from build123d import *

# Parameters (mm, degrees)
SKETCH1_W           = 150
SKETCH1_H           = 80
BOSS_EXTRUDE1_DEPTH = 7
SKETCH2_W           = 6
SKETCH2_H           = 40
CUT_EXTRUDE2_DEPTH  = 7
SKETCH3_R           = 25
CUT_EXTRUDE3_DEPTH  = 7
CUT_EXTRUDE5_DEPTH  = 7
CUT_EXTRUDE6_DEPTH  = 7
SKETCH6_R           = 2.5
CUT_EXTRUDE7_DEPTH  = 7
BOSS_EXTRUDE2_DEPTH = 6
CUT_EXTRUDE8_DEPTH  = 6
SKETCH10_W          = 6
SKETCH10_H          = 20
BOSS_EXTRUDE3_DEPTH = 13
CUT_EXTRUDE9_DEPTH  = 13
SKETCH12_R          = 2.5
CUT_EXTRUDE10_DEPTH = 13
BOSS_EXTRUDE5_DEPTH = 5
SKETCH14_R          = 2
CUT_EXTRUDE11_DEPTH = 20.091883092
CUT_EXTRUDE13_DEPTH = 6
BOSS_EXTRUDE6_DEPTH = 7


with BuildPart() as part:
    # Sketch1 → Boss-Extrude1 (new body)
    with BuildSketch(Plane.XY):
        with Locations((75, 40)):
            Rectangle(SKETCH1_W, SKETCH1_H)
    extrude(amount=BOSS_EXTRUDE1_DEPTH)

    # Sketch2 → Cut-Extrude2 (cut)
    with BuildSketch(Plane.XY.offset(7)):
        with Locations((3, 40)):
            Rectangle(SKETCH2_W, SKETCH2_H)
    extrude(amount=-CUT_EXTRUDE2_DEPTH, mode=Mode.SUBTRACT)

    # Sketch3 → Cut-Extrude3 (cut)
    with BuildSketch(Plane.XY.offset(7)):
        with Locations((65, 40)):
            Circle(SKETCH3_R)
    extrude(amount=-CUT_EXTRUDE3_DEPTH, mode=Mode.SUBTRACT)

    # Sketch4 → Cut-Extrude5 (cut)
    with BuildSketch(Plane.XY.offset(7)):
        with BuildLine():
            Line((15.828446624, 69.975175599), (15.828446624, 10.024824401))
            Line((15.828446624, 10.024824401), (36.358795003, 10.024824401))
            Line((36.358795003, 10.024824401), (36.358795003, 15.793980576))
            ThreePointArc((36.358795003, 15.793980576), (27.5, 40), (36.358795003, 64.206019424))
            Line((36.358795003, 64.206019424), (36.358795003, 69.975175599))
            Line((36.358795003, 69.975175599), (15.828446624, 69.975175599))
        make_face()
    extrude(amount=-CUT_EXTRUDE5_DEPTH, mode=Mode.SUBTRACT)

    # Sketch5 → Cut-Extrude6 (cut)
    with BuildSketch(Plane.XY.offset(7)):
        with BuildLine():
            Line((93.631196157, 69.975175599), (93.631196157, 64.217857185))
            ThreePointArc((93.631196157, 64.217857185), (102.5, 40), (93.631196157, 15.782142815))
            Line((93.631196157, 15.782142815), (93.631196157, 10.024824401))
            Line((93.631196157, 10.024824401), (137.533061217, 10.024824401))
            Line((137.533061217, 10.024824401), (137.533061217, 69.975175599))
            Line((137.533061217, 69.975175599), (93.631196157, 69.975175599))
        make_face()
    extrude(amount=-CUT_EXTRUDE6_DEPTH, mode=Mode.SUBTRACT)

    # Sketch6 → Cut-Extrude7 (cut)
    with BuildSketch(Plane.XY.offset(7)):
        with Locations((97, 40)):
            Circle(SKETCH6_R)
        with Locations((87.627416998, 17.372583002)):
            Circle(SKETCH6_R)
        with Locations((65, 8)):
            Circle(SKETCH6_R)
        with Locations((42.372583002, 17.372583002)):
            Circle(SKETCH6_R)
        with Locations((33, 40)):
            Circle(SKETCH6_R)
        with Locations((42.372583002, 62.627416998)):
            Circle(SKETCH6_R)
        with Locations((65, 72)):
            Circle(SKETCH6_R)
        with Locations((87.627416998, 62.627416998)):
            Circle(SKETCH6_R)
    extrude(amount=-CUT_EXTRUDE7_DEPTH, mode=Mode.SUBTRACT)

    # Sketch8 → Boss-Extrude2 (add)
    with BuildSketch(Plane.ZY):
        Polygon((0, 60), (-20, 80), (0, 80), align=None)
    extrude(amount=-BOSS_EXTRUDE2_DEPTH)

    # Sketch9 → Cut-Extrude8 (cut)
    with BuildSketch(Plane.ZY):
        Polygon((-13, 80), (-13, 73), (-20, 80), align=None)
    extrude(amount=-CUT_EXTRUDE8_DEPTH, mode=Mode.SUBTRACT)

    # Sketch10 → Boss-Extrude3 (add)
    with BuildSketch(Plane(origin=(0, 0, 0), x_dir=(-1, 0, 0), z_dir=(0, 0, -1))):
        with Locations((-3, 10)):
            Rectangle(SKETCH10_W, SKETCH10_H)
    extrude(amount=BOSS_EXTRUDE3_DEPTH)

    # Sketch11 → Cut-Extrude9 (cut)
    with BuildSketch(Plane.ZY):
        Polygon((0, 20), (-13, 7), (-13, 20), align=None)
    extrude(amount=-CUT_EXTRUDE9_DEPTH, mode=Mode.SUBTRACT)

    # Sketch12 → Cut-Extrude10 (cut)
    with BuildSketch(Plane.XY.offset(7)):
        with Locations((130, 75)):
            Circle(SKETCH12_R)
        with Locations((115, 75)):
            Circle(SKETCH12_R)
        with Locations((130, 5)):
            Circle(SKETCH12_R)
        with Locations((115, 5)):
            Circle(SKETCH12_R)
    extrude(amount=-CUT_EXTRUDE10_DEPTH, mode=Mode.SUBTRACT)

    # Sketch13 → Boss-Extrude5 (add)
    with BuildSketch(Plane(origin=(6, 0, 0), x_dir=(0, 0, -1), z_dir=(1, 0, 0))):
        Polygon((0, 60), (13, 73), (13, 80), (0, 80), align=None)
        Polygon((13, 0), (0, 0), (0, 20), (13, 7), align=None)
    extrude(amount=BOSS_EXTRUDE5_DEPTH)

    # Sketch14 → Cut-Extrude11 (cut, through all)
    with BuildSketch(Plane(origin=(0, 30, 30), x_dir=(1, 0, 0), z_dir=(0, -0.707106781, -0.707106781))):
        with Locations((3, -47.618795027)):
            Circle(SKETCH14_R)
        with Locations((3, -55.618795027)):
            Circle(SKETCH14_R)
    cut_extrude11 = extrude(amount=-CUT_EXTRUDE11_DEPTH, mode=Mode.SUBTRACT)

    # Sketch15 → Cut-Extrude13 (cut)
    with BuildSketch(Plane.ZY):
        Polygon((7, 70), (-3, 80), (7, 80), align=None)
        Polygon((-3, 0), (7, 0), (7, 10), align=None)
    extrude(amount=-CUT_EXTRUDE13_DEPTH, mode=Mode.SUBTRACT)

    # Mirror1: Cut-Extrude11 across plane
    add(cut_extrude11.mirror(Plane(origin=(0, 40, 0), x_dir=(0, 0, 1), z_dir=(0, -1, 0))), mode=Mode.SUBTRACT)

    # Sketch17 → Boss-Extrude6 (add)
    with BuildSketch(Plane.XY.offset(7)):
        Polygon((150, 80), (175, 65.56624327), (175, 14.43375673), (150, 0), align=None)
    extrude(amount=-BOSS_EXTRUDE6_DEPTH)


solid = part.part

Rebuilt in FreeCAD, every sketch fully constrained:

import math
import FreeCAD as App
import Part
import Sketcher
Q = App.Units.Quantity


def add_polygon(sketch, points):
    """Adds a closed chain of lines whose ends are joined by coincident constraints."""
    first, n = sketch.GeometryCount, len(points)
    for a, b in zip(points, points[1:] + points[:1]):
        sketch.addGeometry(Part.LineSegment(App.Vector(*a, 0), App.Vector(*b, 0)), False)
    for i in range(n):
        sketch.addConstraint(Sketcher.Constraint("Coincident", first + i, 2, first + (i + 1) % n, 1))

doc = App.newDocument("Part")
params = doc.addObject("Spreadsheet::Sheet", "Params")
for row, (alias, value) in enumerate([
    ("sketch1_width", "150 mm"),
    ("sketch1_height", "80 mm"),
    ("pad1_length", "7 mm"),
    ("sketch2_width", "6 mm"),
    ("sketch2_height", "40 mm"),
    ("pocket1_length", "7 mm"),
    ("sketch3_diameter", "50 mm"),
    ("pocket2_length", "7 mm"),
    ("sketch4_radius", "37.5 mm"),
    ("pocket3_length", "7 mm"),
    ("sketch5_radius", "37.5 mm"),
    ("pocket4_length", "7 mm"),
    ("sketch6_diameter", "5 mm"),
    ("pocket5_length", "7 mm"),
    ("sketch7_width", "20 mm"),
    ("pad2_length", "6 mm"),
    ("sketch8_width", "7 mm"),
    ("pocket6_length", "6 mm"),
    ("sketch9_width", "6 mm"),
    ("sketch9_height", "20 mm"),
    ("pad3_length", "13 mm"),
    ("sketch10_width", "13 mm"),
    ("pocket7_length", "13 mm"),
    ("sketch11_diameter", "5 mm"),
    ("pocket8_length", "13 mm"),
    ("sketch12_width", "7 mm"),
    ("sketch12_width2", "20 mm"),
    ("pad4_length", "5 mm"),
    ("sketch13_diameter", "4 mm"),
    ("sketch14_width", "10 mm"),
    ("pocket10_length", "6 mm"),
    ("sketch15_height", "80 mm"),
    ("pad5_length", "7 mm"),
], start=1):
    params.set(f"A{row}", alias)
    params.set(f"B{row}", "=" + value)
    params.setAlias(f"B{row}", alias)

body = doc.addObject("PartDesign::Body", "Body")

sketch1 = body.newObject("Sketcher::SketchObject", "Sketch")
sketch1.AttachmentSupport = (doc.getObject("XY_Plane"), [""])
sketch1.MapMode = "FlatFace"
add_polygon(sketch1, [(0, 80), (0, 0), (150, 0), (150, 80)])
sketch1.addConstraint([
    Sketcher.Constraint("Vertical", 0),
    Sketcher.Constraint("Horizontal", 1),
    Sketcher.Constraint("Vertical", 2),
    Sketcher.Constraint("Horizontal", 3),
    Sketcher.Constraint("Coincident", 0, 2, -1, 1),
    Sketcher.Constraint("DistanceX", 1, 1, 1, 2, 150.0),
    Sketcher.Constraint("DistanceY", 0, 2, 0, 1, 80.0),
])
sketch1.setExpression("Constraints[9]", "Params.sketch1_width")
sketch1.setExpression("Constraints[10]", "Params.sketch1_height")
pad1 = body.newObject("PartDesign::Pad", "Pad")
pad1.Profile = sketch1
pad1.setExpression("Length", "Params.pad1_length")

sketch2 = body.newObject("Sketcher::SketchObject", "Sketch001")
sketch2.AttachmentSupport = (doc.getObject("XY_Plane"), [""])
sketch2.MapMode = "FlatFace"
sketch2.AttachmentOffset = App.Placement(App.Vector(0, 0, 7), App.Rotation())
add_polygon(sketch2, [(0, 60), (0, 20), (6, 20), (6, 60)])
sketch2.addConstraint([
    Sketcher.Constraint("Vertical", 0),
    Sketcher.Constraint("Horizontal", 1),
    Sketcher.Constraint("Vertical", 2),
    Sketcher.Constraint("Horizontal", 3),
    Sketcher.Constraint("PointOnObject", 0, 2, -2),
    Sketcher.Constraint("DistanceX", 1, 1, 1, 2, 6.0),
    Sketcher.Constraint("DistanceY", 0, 2, 0, 1, 40.0),
    Sketcher.Constraint("DistanceY", -1, 1, 0, 2, 20.0),
])
sketch2.setExpression("Constraints[9]", "Params.sketch2_width")
sketch2.setExpression("Constraints[10]", "Params.sketch2_height")
pocket1 = body.newObject("PartDesign::Pocket", "Pocket")
pocket1.Profile = sketch2
pocket1.setExpression("Length", "Params.pocket1_length")

sketch3 = body.newObject("Sketcher::SketchObject", "Sketch002")
sketch3.AttachmentSupport = (doc.getObject("XY_Plane"), [""])
sketch3.MapMode = "FlatFace"
sketch3.AttachmentOffset = App.Placement(App.Vector(0, 0, 7), App.Rotation())
sketch3.addGeometry(Part.Circle(App.Vector(65, 40, 0), App.Vector(0, 0, 1), 25), False)
sketch3.addConstraint([
    Sketcher.Constraint("Diameter", 0, 50.0),
    Sketcher.Constraint("DistanceX", -1, 1, 0, 3, 65.0),
    Sketcher.Constraint("DistanceY", -1, 1, 0, 3, 40.0),
])
sketch3.setExpression("Constraints[0]", "Params.sketch3_diameter")
pocket2 = body.newObject("PartDesign::Pocket", "Pocket001")
pocket2.Profile = sketch3
pocket2.setExpression("Length", "Params.pocket2_length")

sketch4 = body.newObject("Sketcher::SketchObject", "Sketch003")
sketch4.AttachmentSupport = (doc.getObject("XY_Plane"), [""])
sketch4.MapMode = "FlatFace"
sketch4.AttachmentOffset = App.Placement(App.Vector(0, 0, 7), App.Rotation())
sketch4.addGeometry([
    Part.LineSegment(App.Vector(15.828447, 69.975176, 0), App.Vector(15.828447, 10.024824, 0)),
    Part.LineSegment(App.Vector(15.828447, 10.024824, 0), App.Vector(36.358795, 10.024824, 0)),
    Part.LineSegment(App.Vector(36.358795, 10.024824, 0), App.Vector(36.358795, 15.793981, 0)),
    Part.ArcOfCircle(Part.Circle(App.Vector(65, 40, 0), App.Vector(0, 0, 1), 37.5), math.radians(139.797287), math.radians(220.202713)),
    Part.LineSegment(App.Vector(36.358795, 64.206019, 0), App.Vector(36.358795, 69.975176, 0)),
    Part.LineSegment(App.Vector(36.358795, 69.975176, 0), App.Vector(15.828447, 69.975176, 0)),
], False)
sketch4.addConstraint([
    Sketcher.Constraint("Coincident", 0, 2, 1, 1),
    Sketcher.Constraint("Coincident", 1, 2, 2, 1),
    Sketcher.Constraint("Coincident", 2, 2, 3, 2),
    Sketcher.Constraint("Coincident", 3, 1, 4, 1),
    Sketcher.Constraint("Coincident", 4, 2, 5, 1),
    Sketcher.Constraint("Coincident", 5, 2, 0, 1),
    Sketcher.Constraint("Vertical", 0),
    Sketcher.Constraint("Horizontal", 1),
    Sketcher.Constraint("Vertical", 2),
    Sketcher.Constraint("Vertical", 4),
    Sketcher.Constraint("Horizontal", 5),
    Sketcher.Constraint("Vertical", 2, 2, 3, 1),
    Sketcher.Constraint("Equal", 2, 4),
    Sketcher.Constraint("Radius", 3, 37.5),
    Sketcher.Constraint("DistanceX", -1, 1, 3, 3, 65.0),
    Sketcher.Constraint("DistanceY", -1, 1, 3, 3, 40.0),
    Sketcher.Constraint("DistanceX", 1, 1, 1, 2, 20.530348),
    Sketcher.Constraint("DistanceY", 0, 2, 0, 1, 59.950351),
    Sketcher.Constraint("DistanceY", 2, 1, 2, 2, 5.769156),
])
sketch4.setExpression("Constraints[13]", "Params.sketch4_radius")
pocket3 = body.newObject("PartDesign::Pocket", "Pocket002")
pocket3.Profile = sketch4
pocket3.setExpression("Length", "Params.pocket3_length")

sketch5 = body.newObject("Sketcher::SketchObject", "Sketch004")
sketch5.AttachmentSupport = (doc.getObject("XY_Plane"), [""])
sketch5.MapMode = "FlatFace"
sketch5.AttachmentOffset = App.Placement(App.Vector(0, 0, 7), App.Rotation())
sketch5.addGeometry([
    Part.LineSegment(App.Vector(93.631196, 69.975176, 0), App.Vector(93.631196, 64.217857, 0)),
    Part.ArcOfCircle(Part.Circle(App.Vector(65, 40, 0), App.Vector(0, 0, 1), 37.5), math.radians(-40.226398), math.radians(40.226398)),
    Part.LineSegment(App.Vector(93.631196, 15.782143, 0), App.Vector(93.631196, 10.024824, 0)),
    Part.LineSegment(App.Vector(93.631196, 10.024824, 0), App.Vector(137.533061, 10.024824, 0)),
    Part.LineSegment(App.Vector(137.533061, 10.024824, 0), App.Vector(137.533061, 69.975176, 0)),
    Part.LineSegment(App.Vector(137.533061, 69.975176, 0), App.Vector(93.631196, 69.975176, 0)),
], False)
sketch5.addConstraint([
    Sketcher.Constraint("Coincident", 0, 2, 1, 2),
    Sketcher.Constraint("Coincident", 1, 1, 2, 1),
    Sketcher.Constraint("Coincident", 2, 2, 3, 1),
    Sketcher.Constraint("Coincident", 3, 2, 4, 1),
    Sketcher.Constraint("Coincident", 4, 2, 5, 1),
    Sketcher.Constraint("Coincident", 5, 2, 0, 1),
    Sketcher.Constraint("Vertical", 0),
    Sketcher.Constraint("Vertical", 2),
    Sketcher.Constraint("Horizontal", 3),
    Sketcher.Constraint("Vertical", 4),
    Sketcher.Constraint("Horizontal", 5),
    Sketcher.Constraint("Vertical", 0, 2, 1, 1),
    Sketcher.Constraint("Equal", 0, 2),
    Sketcher.Constraint("Radius", 1, 37.5),
    Sketcher.Constraint("DistanceX", -1, 1, 1, 3, 65.0),
    Sketcher.Constraint("DistanceY", -1, 1, 1, 3, 40.0),
    Sketcher.Constraint("DistanceY", 0, 2, 0, 1, 5.757318),
    Sketcher.Constraint("DistanceY", 4, 1, 4, 2, 59.950351),
    Sketcher.Constraint("DistanceX", 3, 1, 3, 2, 43.901865),
])
sketch5.setExpression("Constraints[13]", "Params.sketch5_radius")
pocket4 = body.newObject("PartDesign::Pocket", "Pocket003")
pocket4.Profile = sketch5
pocket4.setExpression("Length", "Params.pocket4_length")

sketch6 = body.newObject("Sketcher::SketchObject", "Sketch005")
sketch6.AttachmentSupport = (doc.getObject("XY_Plane"), [""])
sketch6.MapMode = "FlatFace"
sketch6.AttachmentOffset = App.Placement(App.Vector(0, 0, 7), App.Rotation())
sketch6.addGeometry([
    Part.Circle(App.Vector(97, 40, 0), App.Vector(0, 0, 1), 2.5),
    Part.Circle(App.Vector(87.627417, 17.372583, 0), App.Vector(0, 0, 1), 2.5),
    Part.Circle(App.Vector(65, 8, 0), App.Vector(0, 0, 1), 2.5),
    Part.Circle(App.Vector(42.372583, 17.372583, 0), App.Vector(0, 0, 1), 2.5),
    Part.Circle(App.Vector(33, 40, 0), App.Vector(0, 0, 1), 2.5),
    Part.Circle(App.Vector(42.372583, 62.627417, 0), App.Vector(0, 0, 1), 2.5),
    Part.Circle(App.Vector(65, 72, 0), App.Vector(0, 0, 1), 2.5),
    Part.Circle(App.Vector(87.627417, 62.627417, 0), App.Vector(0, 0, 1), 2.5),
], False)
sketch6.addConstraint([
    Sketcher.Constraint("Equal", 0, 1),
    Sketcher.Constraint("Equal", 1, 2),
    Sketcher.Constraint("Equal", 2, 3),
    Sketcher.Constraint("Equal", 3, 4),
    Sketcher.Constraint("Equal", 4, 5),
    Sketcher.Constraint("Equal", 5, 6),
    Sketcher.Constraint("Equal", 6, 7),
    Sketcher.Constraint("Horizontal", 1, 3, 3, 3),
    Sketcher.Constraint("Horizontal", 0, 3, 4, 3),
    Sketcher.Constraint("Horizontal", 5, 3, 7, 3),
    Sketcher.Constraint("Vertical", 3, 3, 5, 3),
    Sketcher.Constraint("Vertical", 2, 3, 6, 3),
    Sketcher.Constraint("Vertical", 1, 3, 7, 3),
    Sketcher.Constraint("Diameter", 0, 5.0),
    Sketcher.Constraint("DistanceX", -1, 1, 0, 3, 97.0),
    Sketcher.Constraint("DistanceY", -1, 1, 0, 3, 40.0),
    Sketcher.Constraint("DistanceX", -1, 1, 2, 3, 65.0),
    Sketcher.Constraint("DistanceY", -1, 1, 2, 3, 8.0),
    Sketcher.Constraint("DistanceX", -1, 1, 4, 3, 33.0),
    Sketcher.Constraint("DistanceY", -1, 1, 6, 3, 72.0),
    Sketcher.Constraint("DistanceX", -1, 1, 1, 3, 87.627417),
    Sketcher.Constraint("DistanceY", -1, 1, 1, 3, 17.372583),
    Sketcher.Constraint("DistanceX", -1, 1, 3, 3, 42.372583),
    Sketcher.Constraint("DistanceY", -1, 1, 5, 3, 62.627417),
])
sketch6.setExpression("Constraints[13]", "Params.sketch6_diameter")
pocket5 = body.newObject("PartDesign::Pocket", "Pocket004")
pocket5.Profile = sketch6
pocket5.setExpression("Length", "Params.pocket5_length")

sketch7 = body.newObject("Sketcher::SketchObject", "Sketch006")
sketch7.AttachmentSupport = (doc.getObject("YZ_Plane"), [""])
sketch7.MapMode = "FlatFace"
add_polygon(sketch7, [(80, -20), (60, 0), (80, 0)])
sketch7.addConstraint([
    Sketcher.Constraint("Horizontal", 1),
    Sketcher.Constraint("Vertical", 2),
    Sketcher.Constraint("PointOnObject", 0, 2, -1),
    Sketcher.Constraint("Equal", 1, 2),
    Sketcher.Constraint("DistanceX", 1, 1, 1, 2, 20.0),
    Sketcher.Constraint("DistanceX", -1, 1, 0, 2, 60.0),
])
sketch7.setExpression("Constraints[7]", "Params.sketch7_width")
pad2 = body.newObject("PartDesign::Pad", "Pad001")
pad2.Profile = sketch7
pad2.setExpression("Length", "Params.pad2_length")

sketch8 = body.newObject("Sketcher::SketchObject", "Sketch007")
sketch8.AttachmentSupport = (doc.getObject("YZ_Plane"), [""])
sketch8.MapMode = "FlatFace"
add_polygon(sketch8, [(73, -13), (80, -13), (80, -20)])
sketch8.addConstraint([
    Sketcher.Constraint("Horizontal", 0),
    Sketcher.Constraint("Vertical", 1),
    Sketcher.Constraint("Equal", 0, 1),
    Sketcher.Constraint("DistanceX", 0, 1, 0, 2, 7.0),
    Sketcher.Constraint("DistanceX", -1, 1, 0, 2, 80.0),
    Sketcher.Constraint("DistanceY", 0, 2, -1, 1, 13.0),
])
sketch8.setExpression("Constraints[6]", "Params.sketch8_width")
pocket6 = body.newObject("PartDesign::Pocket", "Pocket005")
pocket6.Profile = sketch8
pocket6.setExpression("Length", "Params.pocket6_length")
pocket6.Reversed = True

sketch9 = body.newObject("Sketcher::SketchObject", "Sketch008")
sketch9.AttachmentSupport = (doc.getObject("XY_Plane"), [""])
sketch9.MapMode = "FlatFace"
add_polygon(sketch9, [(6, 20), (6, 0), (0, 0), (0, 20)])
sketch9.addConstraint([
    Sketcher.Constraint("Vertical", 0),
    Sketcher.Constraint("Horizontal", 1),
    Sketcher.Constraint("Vertical", 2),
    Sketcher.Constraint("Horizontal", 3),
    Sketcher.Constraint("Coincident", 1, 2, -1, 1),
    Sketcher.Constraint("DistanceX", 1, 2, 1, 1, 6.0),
    Sketcher.Constraint("DistanceY", 0, 2, 0, 1, 20.0),
])
sketch9.setExpression("Constraints[9]", "Params.sketch9_width")
sketch9.setExpression("Constraints[10]", "Params.sketch9_height")
pad3 = body.newObject("PartDesign::Pad", "Pad002")
pad3.Profile = sketch9
pad3.setExpression("Length", "Params.pad3_length")
pad3.Reversed = True

sketch10 = body.newObject("Sketcher::SketchObject", "Sketch009")
sketch10.AttachmentSupport = (doc.getObject("YZ_Plane"), [""])
sketch10.MapMode = "FlatFace"
add_polygon(sketch10, [(7, -13), (20, 0), (20, -13)])
sketch10.addConstraint([
    Sketcher.Constraint("Vertical", 1),
    Sketcher.Constraint("Horizontal", 2),
    Sketcher.Constraint("PointOnObject", 0, 2, -1),
    Sketcher.Constraint("Equal", 2, 1),
    Sketcher.Constraint("DistanceX", 2, 2, 2, 1, 13.0),
    Sketcher.Constraint("DistanceX", -1, 1, 0, 2, 20.0),
])
sketch10.setExpression("Constraints[7]", "Params.sketch10_width")
pocket7 = body.newObject("PartDesign::Pocket", "Pocket006")
pocket7.Profile = sketch10
pocket7.setExpression("Length", "Params.pocket7_length")
pocket7.Reversed = True

sketch11 = body.newObject("Sketcher::SketchObject", "Sketch010")
sketch11.AttachmentSupport = (doc.getObject("XY_Plane"), [""])
sketch11.MapMode = "FlatFace"
sketch11.AttachmentOffset = App.Placement(App.Vector(0, 0, 7), App.Rotation())
sketch11.addGeometry([
    Part.Circle(App.Vector(130, 75, 0), App.Vector(0, 0, 1), 2.5),
    Part.Circle(App.Vector(115, 75, 0), App.Vector(0, 0, 1), 2.5),
    Part.Circle(App.Vector(130, 5, 0), App.Vector(0, 0, 1), 2.5),
    Part.Circle(App.Vector(115, 5, 0), App.Vector(0, 0, 1), 2.5),
], False)
sketch11.addConstraint([
    Sketcher.Constraint("Equal", 0, 1),
    Sketcher.Constraint("Equal", 1, 2),
    Sketcher.Constraint("Equal", 2, 3),
    Sketcher.Constraint("Horizontal", 0, 3, 1, 3),
    Sketcher.Constraint("Horizontal", 2, 3, 3, 3),
    Sketcher.Constraint("Vertical", 0, 3, 2, 3),
    Sketcher.Constraint("Vertical", 1, 3, 3, 3),
    Sketcher.Constraint("Diameter", 0, 5.0),
    Sketcher.Constraint("DistanceX", -1, 1, 0, 3, 130.0),
    Sketcher.Constraint("DistanceY", -1, 1, 0, 3, 75.0),
    Sketcher.Constraint("DistanceX", -1, 1, 1, 3, 115.0),
    Sketcher.Constraint("DistanceY", -1, 1, 2, 3, 5.0),
])
sketch11.setExpression("Constraints[7]", "Params.sketch11_diameter")
pocket8 = body.newObject("PartDesign::Pocket", "Pocket007")
pocket8.Profile = sketch11
pocket8.setExpression("Length", "Params.pocket8_length")

sketch12 = body.newObject("Sketcher::SketchObject", "Sketch011")
sketch12.AttachmentSupport = (doc.getObject("YZ_Plane"), [""])
sketch12.MapMode = "FlatFace"
sketch12.AttachmentOffset = App.Placement(App.Vector(0, 0, 6), App.Rotation())
add_polygon(sketch12, [(60, 0), (73, -13), (80, -13), (80, 0)])
add_polygon(sketch12, [(0, 0), (0, -13), (7, -13), (20, 0)])
sketch12.addConstraint([
    Sketcher.Constraint("Horizontal", 1),
    Sketcher.Constraint("Vertical", 2),
    Sketcher.Constraint("Horizontal", 3),
    Sketcher.Constraint("Vertical", 4),
    Sketcher.Constraint("Horizontal", 5),
    Sketcher.Constraint("Horizontal", 7),
    Sketcher.Constraint("Coincident", 7, 2, -1, 1),
    Sketcher.Constraint("PointOnObject", 2, 2, -1),
    Sketcher.Constraint("Perpendicular", 0, 6),
    Sketcher.Constraint("Horizontal", 1, 2, 4, 2),
    Sketcher.Constraint("Equal", 1, 5),
    Sketcher.Constraint("Equal", 3, 7),
    Sketcher.Constraint("DistanceX", 1, 1, 1, 2, 7.0),
    Sketcher.Constraint("DistanceX", 3, 2, 3, 1, 20.0),
    Sketcher.Constraint("DistanceX", -1, 1, 0, 2, 73.0),
])
sketch12.setExpression("Constraints[20]", "Params.sketch12_width")
sketch12.setExpression("Constraints[21]", "Params.sketch12_width2")
pad4 = body.newObject("PartDesign::Pad", "Pad003")
pad4.Profile = sketch12
pad4.setExpression("Length", "Params.pad4_length")

sketch13 = body.newObject("Sketcher::SketchObject", "Sketch012")
sketch13.Placement = App.Placement(App.Vector(0, 30, 30), App.Rotation(App.Vector(1, 0, 0), App.Vector(0, -0.707106781, 0.707106781), App.Vector(0, -0.707106781, -0.707106781), "ZXY"))
sketch13.addGeometry([
    Part.Circle(App.Vector(3, -47.618795, 0), App.Vector(0, 0, 1), 2),
    Part.Circle(App.Vector(3, -55.618795, 0), App.Vector(0, 0, 1), 2),
], False)
sketch13.addConstraint([
    Sketcher.Constraint("Equal", 0, 1),
    Sketcher.Constraint("Vertical", 0, 3, 1, 3),
    Sketcher.Constraint("Diameter", 0, 4.0),
    Sketcher.Constraint("DistanceX", -1, 1, 0, 3, 3.0),
    Sketcher.Constraint("DistanceY", 1, 3, 0, 3, 8.0),
    Sketcher.Constraint("DistanceY", 0, 3, -1, 1, 47.618795),
])
sketch13.setExpression("Constraints[2]", "Params.sketch13_diameter")
pocket9 = body.newObject("PartDesign::Pocket", "Pocket008")
pocket9.Profile = sketch13
pocket9.Type = "ThroughAll"

sketch14 = body.newObject("Sketcher::SketchObject", "Sketch013")
sketch14.AttachmentSupport = (doc.getObject("YZ_Plane"), [""])
sketch14.MapMode = "FlatFace"
add_polygon(sketch14, [(80, -3), (70, 7), (80, 7)])
add_polygon(sketch14, [(0, -3), (0, 7), (10, 7)])
sketch14.addConstraint([
    Sketcher.Constraint("Horizontal", 1),
    Sketcher.Constraint("Vertical", 2),
    Sketcher.Constraint("Vertical", 3),
    Sketcher.Constraint("Horizontal", 4),
    Sketcher.Constraint("PointOnObject", 3, 2, -2),
    Sketcher.Constraint("Perpendicular", 0, 5),
    Sketcher.Constraint("Horizontal", 1, 2, 3, 2),
    Sketcher.Constraint("Horizontal", 2, 2, 5, 2),
    Sketcher.Constraint("Equal", 1, 4),
    Sketcher.Constraint("DistanceX", 1, 1, 1, 2, 10.0),
    Sketcher.Constraint("DistanceX", -1, 1, 0, 2, 70.0),
    Sketcher.Constraint("DistanceY", -1, 1, 0, 2, 7.0),
])
sketch14.setExpression("Constraints[15]", "Params.sketch14_width")
pocket10 = body.newObject("PartDesign::Pocket", "Pocket009")
pocket10.Profile = sketch14
pocket10.setExpression("Length", "Params.pocket10_length")
pocket10.Reversed = True
doc.recompute()

datumplane = body.newObject("PartDesign::Plane", "DatumPlane")
datumplane.AttachmentSupport = (doc.getObject("XZ_Plane"), [""])
datumplane.MapMode = "FlatFace"
datumplane.AttachmentOffset = App.Placement(App.Vector(0, 0, -40), App.Rotation())
mirrored = body.newObject("PartDesign::Mirrored", "Mirrored")
mirrored.Originals = [pocket9]
mirrored.MirrorPlane = (datumplane, [""])
body.Tip = mirrored

sketch15 = body.newObject("Sketcher::SketchObject", "Sketch014")
sketch15.AttachmentSupport = (doc.getObject("XY_Plane"), [""])
sketch15.MapMode = "FlatFace"
sketch15.AttachmentOffset = App.Placement(App.Vector(0, 0, 7), App.Rotation())
add_polygon(sketch15, [(175, 65.566243), (150, 80), (150, 0), (175, 14.433757)])
sketch15.addConstraint([
    Sketcher.Constraint("Vertical", 1),
    Sketcher.Constraint("Vertical", 3),
    Sketcher.Constraint("PointOnObject", 1, 2, -1),
    Sketcher.Constraint("Equal", 0, 2),
    Sketcher.Constraint("DistanceY", 1, 2, 1, 1, 80.0),
    Sketcher.Constraint("Angle", 0, Q("150 deg")),
    Sketcher.Constraint("DistanceX", -1, 1, 0, 2, 150.0),
    Sketcher.Constraint("DistanceX", -1, 1, 2, 2, 175.0),
])
sketch15.setExpression("Constraints[8]", "Params.sketch15_height")
pad5 = body.newObject("PartDesign::Pad", "Pad004")
pad5.Profile = sketch15
pad5.setExpression("Length", "Params.pad5_length")
pad5.Reversed = True

doc.recompute()
